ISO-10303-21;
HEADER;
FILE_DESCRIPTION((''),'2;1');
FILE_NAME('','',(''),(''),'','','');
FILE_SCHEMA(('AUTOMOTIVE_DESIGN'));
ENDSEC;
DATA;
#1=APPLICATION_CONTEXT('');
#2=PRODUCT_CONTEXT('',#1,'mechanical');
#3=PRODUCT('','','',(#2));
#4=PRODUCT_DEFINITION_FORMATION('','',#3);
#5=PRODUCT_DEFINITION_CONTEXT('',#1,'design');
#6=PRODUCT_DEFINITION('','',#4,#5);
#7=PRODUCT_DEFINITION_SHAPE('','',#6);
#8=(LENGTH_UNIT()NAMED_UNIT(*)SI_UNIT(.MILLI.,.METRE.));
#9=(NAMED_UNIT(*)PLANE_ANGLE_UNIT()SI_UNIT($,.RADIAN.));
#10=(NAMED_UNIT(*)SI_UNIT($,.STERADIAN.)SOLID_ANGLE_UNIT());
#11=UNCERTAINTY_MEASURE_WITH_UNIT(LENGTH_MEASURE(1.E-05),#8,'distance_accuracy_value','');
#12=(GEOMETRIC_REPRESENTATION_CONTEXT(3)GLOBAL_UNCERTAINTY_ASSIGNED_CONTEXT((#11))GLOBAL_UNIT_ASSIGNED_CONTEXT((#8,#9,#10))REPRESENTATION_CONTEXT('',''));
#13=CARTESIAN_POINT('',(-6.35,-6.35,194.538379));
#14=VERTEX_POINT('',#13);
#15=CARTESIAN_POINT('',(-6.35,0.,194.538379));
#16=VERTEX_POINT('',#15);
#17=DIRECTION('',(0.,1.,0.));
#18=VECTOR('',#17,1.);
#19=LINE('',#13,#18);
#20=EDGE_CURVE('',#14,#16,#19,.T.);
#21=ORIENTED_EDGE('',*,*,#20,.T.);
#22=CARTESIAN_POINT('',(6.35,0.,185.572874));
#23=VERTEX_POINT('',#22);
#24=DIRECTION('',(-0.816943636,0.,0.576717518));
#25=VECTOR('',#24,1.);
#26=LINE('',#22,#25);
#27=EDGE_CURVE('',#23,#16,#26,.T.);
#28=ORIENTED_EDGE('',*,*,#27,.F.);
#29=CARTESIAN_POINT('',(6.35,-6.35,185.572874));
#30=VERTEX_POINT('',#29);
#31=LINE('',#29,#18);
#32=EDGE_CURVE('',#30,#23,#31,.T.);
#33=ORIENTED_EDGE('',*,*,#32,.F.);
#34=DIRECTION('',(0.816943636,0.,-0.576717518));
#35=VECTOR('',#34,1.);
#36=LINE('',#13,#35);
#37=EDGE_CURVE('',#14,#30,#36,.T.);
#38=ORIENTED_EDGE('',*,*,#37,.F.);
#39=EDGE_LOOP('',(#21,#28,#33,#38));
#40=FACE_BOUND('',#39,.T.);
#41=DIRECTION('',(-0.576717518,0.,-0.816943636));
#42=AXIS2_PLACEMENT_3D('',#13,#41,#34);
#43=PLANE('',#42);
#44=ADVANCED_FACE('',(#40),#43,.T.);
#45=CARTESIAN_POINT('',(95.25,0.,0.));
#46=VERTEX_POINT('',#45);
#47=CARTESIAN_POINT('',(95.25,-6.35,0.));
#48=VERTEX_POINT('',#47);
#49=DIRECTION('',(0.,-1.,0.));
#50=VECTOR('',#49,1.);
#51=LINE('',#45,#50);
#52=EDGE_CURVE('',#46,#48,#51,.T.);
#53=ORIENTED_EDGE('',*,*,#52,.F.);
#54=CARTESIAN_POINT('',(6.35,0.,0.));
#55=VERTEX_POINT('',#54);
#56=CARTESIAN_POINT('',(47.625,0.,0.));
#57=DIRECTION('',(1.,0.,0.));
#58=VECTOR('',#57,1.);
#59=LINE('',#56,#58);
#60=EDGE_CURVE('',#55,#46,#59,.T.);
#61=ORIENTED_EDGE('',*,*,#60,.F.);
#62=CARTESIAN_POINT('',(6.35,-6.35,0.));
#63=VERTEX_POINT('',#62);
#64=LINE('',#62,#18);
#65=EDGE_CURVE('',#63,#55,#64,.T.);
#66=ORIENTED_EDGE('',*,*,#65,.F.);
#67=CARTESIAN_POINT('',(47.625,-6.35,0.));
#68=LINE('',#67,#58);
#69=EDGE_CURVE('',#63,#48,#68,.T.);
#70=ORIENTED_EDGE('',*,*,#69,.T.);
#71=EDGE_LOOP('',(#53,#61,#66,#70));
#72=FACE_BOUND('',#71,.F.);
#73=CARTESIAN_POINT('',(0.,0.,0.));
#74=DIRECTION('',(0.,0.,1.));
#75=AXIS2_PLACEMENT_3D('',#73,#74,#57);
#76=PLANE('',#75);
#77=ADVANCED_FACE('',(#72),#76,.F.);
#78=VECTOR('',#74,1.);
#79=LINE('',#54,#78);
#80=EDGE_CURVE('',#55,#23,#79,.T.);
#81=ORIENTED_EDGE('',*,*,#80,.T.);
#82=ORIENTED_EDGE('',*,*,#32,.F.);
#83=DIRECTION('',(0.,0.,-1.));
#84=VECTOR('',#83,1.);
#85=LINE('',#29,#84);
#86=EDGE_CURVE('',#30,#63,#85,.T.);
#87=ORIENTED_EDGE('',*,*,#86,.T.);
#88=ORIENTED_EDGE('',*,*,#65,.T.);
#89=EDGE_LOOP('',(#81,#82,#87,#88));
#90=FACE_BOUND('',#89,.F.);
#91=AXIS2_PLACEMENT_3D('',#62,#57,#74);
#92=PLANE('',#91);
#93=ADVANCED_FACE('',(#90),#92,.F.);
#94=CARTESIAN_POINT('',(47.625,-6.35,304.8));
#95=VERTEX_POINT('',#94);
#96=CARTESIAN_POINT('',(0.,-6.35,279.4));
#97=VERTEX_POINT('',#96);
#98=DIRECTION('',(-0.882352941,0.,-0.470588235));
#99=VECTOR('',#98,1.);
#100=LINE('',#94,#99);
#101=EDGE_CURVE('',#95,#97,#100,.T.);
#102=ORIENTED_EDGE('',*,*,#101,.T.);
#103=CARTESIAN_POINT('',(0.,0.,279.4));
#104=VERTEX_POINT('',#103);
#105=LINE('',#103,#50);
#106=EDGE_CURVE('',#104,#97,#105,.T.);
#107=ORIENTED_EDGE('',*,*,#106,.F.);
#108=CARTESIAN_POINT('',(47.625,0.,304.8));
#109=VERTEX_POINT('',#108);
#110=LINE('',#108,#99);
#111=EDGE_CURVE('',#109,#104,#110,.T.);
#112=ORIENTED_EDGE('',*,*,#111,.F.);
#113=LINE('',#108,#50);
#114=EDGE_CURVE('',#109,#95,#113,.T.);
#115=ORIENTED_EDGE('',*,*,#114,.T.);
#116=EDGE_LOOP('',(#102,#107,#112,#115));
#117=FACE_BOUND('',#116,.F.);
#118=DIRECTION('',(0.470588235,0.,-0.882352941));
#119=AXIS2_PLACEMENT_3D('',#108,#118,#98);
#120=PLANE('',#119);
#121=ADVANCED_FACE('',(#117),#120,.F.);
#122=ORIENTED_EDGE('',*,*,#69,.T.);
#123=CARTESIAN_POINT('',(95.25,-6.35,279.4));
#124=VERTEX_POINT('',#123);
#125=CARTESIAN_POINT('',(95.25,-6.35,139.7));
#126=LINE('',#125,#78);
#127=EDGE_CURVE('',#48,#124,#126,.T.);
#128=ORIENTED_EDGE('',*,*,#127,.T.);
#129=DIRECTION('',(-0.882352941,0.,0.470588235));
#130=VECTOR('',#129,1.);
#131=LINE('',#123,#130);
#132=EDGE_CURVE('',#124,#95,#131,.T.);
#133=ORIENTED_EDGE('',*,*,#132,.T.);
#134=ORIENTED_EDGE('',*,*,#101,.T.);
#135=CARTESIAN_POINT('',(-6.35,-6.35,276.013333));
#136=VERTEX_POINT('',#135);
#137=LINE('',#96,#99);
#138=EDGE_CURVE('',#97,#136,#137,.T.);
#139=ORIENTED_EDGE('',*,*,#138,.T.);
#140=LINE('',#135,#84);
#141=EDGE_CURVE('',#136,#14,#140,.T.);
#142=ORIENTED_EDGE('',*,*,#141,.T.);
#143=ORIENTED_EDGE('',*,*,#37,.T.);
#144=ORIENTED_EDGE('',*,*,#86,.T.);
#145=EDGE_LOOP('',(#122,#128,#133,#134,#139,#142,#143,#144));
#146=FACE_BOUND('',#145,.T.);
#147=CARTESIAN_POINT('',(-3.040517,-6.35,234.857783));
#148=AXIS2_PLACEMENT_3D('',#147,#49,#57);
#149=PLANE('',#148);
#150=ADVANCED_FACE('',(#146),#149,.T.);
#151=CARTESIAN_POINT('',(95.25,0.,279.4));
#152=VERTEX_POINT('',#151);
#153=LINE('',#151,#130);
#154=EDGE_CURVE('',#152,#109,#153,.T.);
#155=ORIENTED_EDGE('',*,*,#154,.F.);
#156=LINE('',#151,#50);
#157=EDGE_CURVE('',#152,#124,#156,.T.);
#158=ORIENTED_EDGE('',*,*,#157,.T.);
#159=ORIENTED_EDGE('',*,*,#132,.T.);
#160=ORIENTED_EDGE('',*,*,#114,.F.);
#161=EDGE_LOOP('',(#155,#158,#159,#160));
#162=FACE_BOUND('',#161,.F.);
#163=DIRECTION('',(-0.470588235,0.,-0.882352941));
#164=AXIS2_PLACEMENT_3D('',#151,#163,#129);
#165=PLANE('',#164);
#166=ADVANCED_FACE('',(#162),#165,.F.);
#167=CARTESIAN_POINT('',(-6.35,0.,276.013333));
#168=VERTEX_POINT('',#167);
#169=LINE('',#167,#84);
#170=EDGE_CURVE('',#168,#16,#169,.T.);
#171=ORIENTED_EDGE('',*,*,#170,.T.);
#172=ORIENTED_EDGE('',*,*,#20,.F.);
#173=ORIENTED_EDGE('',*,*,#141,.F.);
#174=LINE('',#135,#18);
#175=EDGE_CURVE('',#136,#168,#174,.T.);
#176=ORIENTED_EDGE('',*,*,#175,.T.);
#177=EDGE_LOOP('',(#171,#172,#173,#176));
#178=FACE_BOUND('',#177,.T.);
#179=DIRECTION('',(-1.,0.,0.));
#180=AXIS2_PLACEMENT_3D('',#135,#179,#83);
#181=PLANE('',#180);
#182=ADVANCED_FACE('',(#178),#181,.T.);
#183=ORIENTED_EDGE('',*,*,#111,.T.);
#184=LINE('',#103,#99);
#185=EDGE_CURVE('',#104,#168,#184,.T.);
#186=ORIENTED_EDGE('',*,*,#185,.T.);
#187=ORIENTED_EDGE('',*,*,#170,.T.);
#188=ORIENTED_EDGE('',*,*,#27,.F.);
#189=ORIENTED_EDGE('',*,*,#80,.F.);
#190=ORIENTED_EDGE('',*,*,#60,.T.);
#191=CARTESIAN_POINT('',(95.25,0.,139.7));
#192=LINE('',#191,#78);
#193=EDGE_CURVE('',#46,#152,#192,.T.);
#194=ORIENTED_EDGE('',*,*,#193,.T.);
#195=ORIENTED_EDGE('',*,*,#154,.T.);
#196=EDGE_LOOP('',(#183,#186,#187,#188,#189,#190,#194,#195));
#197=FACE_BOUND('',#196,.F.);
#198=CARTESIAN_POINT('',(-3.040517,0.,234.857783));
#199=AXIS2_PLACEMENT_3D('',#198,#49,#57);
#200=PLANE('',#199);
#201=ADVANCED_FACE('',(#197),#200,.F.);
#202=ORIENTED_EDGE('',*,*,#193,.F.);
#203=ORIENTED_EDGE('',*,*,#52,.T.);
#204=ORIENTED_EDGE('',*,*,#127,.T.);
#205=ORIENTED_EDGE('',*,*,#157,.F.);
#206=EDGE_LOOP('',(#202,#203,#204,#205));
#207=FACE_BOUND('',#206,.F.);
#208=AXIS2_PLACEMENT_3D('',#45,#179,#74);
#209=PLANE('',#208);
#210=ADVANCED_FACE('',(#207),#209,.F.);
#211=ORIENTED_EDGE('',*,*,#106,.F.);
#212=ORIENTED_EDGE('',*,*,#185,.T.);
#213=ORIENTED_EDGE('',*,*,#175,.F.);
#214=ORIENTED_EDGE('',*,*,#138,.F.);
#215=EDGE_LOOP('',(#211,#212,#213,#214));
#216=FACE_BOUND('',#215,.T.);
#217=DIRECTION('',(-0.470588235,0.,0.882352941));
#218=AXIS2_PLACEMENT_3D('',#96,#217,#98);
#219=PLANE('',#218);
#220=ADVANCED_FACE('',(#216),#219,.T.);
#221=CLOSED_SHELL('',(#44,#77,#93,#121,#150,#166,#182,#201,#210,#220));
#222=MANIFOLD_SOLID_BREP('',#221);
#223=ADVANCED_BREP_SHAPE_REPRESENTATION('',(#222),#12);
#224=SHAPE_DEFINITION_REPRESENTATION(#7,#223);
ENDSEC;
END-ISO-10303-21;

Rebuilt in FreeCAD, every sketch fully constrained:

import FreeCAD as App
import Part
import Sketcher
Q = App.Units.Quantity


def add_polygon(sketch, points):
    """Adds a closed chain of lines whose ends are joined by coincident constraints."""
    first, n = sketch.GeometryCount, len(points)
    for a, b in zip(points, points[1:] + points[:1]):
        sketch.addGeometry(Part.LineSegment(App.Vector(*a, 0), App.Vector(*b, 0)), False)
    for i in range(n):
        sketch.addConstraint(Sketcher.Constraint("Coincident", first + i, 2, first + (i + 1) % n, 1))

doc = App.newDocument("Part")
body = doc.addObject("PartDesign::Body", "Body")

sketch1 = doc.addObject("Sketcher::SketchObject", "Sketch")
body.addObject(sketch1)
sketch1.AttachmentSupport = (doc.XZ_Plane, [""])
sketch1.MapMode = "FlatFace"
add_polygon(sketch1, [(0, 279), (0, 0), (95, 0), (95, 279), (48, 305)])
sketch1.addConstraint([
    Sketcher.Constraint("Vertical", 0),
    Sketcher.Constraint("Horizontal", 1),
    Sketcher.Constraint("Vertical", 2),
    Sketcher.Constraint("Coincident", 0, 2, -1, 1),
    Sketcher.Constraint("Horizontal", 2, 2, 4, 2),
    Sketcher.Constraint("Equal", 3, 4),
    Sketcher.Constraint("DistanceY", 0, 2, 0, 1, Q("11 in")),
    Sketcher.Constraint("DistanceY", -1, 1, 3, 2, Q("12 in")),
    Sketcher.Constraint("DistanceX", 1, 1, 1, 2, Q("3.75 in")),
])
pad1 = doc.addObject("PartDesign::Pad", "Pad")
body.addObject(pad1)
pad1.Profile = sketch1
pad1.Length = Q("0.25 in")

sketch2 = doc.addObject("Sketcher::SketchObject", "Sketch001")
body.addObject(sketch2)
sketch2.AttachmentSupport = (doc.XZ_Plane, [""])
sketch2.MapMode = "FlatFace"
sketch2.AttachmentOffset = App.Placement(App.Vector(0, 0, 0.25 * 25.4), App.Rotation())
add_polygon(sketch2, [(0, 0), (6, 0), (6, 178), (0, 182)])
sketch2.addConstraint([
    Sketcher.Constraint("Horizontal", 0),
    Sketcher.Constraint("Vertical", 1),
    Sketcher.Constraint("Vertical", 3),
    Sketcher.Constraint("Coincident", 3, 2, -1, 1),
    Sketcher.Constraint("DistanceY", 1, 1, 1, 2, Q("7 in")),
    Sketcher.Constraint("DistanceX", 0, 1, 0, 2, Q("0.25 in")),
    Sketcher.Constraint("Angle", 2, Q("144.78 deg")),
])
pocket1 = doc.addObject("PartDesign::Pocket", "Pocket")
body.addObject(pocket1)
pocket1.Profile = sketch2
pocket1.Length = Q("1 in")

sketch3 = doc.addObject("Sketcher::SketchObject", "Sketch002")
body.addObject(sketch3)
sketch3.AttachmentSupport = (doc.XZ_Plane, [""])
sketch3.MapMode = "FlatFace"
sketch3.AttachmentOffset = App.Placement(App.Vector(0, 0, 0.25 * 25.4), App.Rotation())
add_polygon(sketch3, [(0, 182), (6, 178), (6, 186), (0, 190)])
sketch3.addConstraint([
    Sketcher.Constraint("Vertical", 1),
    Sketcher.Constraint("Vertical", 3),
    Sketcher.Constraint("PointOnObject", 2, 2, -2),
    Sketcher.Constraint("Parallel", 0, 2),
    Sketcher.Constraint("DistanceY", -1, 1, 0, 2, Q("7 in")),
    Sketcher.Constraint("DistanceX", -1, 1, 0, 2, Q("0.25 in")),
    Sketcher.Constraint("Angle", 0, Q("-35.22 deg")),
    Sketcher.Constraint("DistanceY", 1, 1, 1, 2, Q("7.772874 mm")),
])
pocket2 = doc.addObject("PartDesign::Pocket", "Pocket001")
body.addObject(pocket2)
pocket2.Profile = sketch3
pocket2.Length = Q("0.25 in")

sketch4 = doc.addObject("Sketcher::SketchObject", "Sketch003")
body.addObject(sketch4)
sketch4.AttachmentSupport = (doc.XZ_Plane, [""])
sketch4.MapMode = "FlatFace"
sketch4.AttachmentOffset = App.Placement(App.Vector(0, 0, 0.25 * 25.4), App.Rotation())
add_polygon(sketch4, [(0, 190), (0, 279), (-6, 276), (-6, 195)])
sketch4.addConstraint([
    Sketcher.Constraint("Vertical", 0),
    Sketcher.Constraint("Vertical", 2),
    Sketcher.Constraint("PointOnObject", 0, 2, -2),
    Sketcher.Constraint("DistanceY", -1, 1, 0, 2, Q("11 in")),
    Sketcher.Constraint("DistanceX", 1, 2, -1, 1, Q("0.25 in")),
    Sketcher.Constraint("Angle", 3, Q("-35.22 deg")),
    Sketcher.Constraint("DistanceY", 0, 1, 0, 2, Q("89.344373 mm")),
    Sketcher.Constraint("DistanceY", 2, 2, 2, 1, Q("81.474954 mm")),
])
pad2 = doc.addObject("PartDesign::Pad", "Pad001")
body.addObject(pad2)
pad2.Profile = sketch4
pad2.Length = Q("0.25 in")
pad2.Reversed = True

doc.recompute()
